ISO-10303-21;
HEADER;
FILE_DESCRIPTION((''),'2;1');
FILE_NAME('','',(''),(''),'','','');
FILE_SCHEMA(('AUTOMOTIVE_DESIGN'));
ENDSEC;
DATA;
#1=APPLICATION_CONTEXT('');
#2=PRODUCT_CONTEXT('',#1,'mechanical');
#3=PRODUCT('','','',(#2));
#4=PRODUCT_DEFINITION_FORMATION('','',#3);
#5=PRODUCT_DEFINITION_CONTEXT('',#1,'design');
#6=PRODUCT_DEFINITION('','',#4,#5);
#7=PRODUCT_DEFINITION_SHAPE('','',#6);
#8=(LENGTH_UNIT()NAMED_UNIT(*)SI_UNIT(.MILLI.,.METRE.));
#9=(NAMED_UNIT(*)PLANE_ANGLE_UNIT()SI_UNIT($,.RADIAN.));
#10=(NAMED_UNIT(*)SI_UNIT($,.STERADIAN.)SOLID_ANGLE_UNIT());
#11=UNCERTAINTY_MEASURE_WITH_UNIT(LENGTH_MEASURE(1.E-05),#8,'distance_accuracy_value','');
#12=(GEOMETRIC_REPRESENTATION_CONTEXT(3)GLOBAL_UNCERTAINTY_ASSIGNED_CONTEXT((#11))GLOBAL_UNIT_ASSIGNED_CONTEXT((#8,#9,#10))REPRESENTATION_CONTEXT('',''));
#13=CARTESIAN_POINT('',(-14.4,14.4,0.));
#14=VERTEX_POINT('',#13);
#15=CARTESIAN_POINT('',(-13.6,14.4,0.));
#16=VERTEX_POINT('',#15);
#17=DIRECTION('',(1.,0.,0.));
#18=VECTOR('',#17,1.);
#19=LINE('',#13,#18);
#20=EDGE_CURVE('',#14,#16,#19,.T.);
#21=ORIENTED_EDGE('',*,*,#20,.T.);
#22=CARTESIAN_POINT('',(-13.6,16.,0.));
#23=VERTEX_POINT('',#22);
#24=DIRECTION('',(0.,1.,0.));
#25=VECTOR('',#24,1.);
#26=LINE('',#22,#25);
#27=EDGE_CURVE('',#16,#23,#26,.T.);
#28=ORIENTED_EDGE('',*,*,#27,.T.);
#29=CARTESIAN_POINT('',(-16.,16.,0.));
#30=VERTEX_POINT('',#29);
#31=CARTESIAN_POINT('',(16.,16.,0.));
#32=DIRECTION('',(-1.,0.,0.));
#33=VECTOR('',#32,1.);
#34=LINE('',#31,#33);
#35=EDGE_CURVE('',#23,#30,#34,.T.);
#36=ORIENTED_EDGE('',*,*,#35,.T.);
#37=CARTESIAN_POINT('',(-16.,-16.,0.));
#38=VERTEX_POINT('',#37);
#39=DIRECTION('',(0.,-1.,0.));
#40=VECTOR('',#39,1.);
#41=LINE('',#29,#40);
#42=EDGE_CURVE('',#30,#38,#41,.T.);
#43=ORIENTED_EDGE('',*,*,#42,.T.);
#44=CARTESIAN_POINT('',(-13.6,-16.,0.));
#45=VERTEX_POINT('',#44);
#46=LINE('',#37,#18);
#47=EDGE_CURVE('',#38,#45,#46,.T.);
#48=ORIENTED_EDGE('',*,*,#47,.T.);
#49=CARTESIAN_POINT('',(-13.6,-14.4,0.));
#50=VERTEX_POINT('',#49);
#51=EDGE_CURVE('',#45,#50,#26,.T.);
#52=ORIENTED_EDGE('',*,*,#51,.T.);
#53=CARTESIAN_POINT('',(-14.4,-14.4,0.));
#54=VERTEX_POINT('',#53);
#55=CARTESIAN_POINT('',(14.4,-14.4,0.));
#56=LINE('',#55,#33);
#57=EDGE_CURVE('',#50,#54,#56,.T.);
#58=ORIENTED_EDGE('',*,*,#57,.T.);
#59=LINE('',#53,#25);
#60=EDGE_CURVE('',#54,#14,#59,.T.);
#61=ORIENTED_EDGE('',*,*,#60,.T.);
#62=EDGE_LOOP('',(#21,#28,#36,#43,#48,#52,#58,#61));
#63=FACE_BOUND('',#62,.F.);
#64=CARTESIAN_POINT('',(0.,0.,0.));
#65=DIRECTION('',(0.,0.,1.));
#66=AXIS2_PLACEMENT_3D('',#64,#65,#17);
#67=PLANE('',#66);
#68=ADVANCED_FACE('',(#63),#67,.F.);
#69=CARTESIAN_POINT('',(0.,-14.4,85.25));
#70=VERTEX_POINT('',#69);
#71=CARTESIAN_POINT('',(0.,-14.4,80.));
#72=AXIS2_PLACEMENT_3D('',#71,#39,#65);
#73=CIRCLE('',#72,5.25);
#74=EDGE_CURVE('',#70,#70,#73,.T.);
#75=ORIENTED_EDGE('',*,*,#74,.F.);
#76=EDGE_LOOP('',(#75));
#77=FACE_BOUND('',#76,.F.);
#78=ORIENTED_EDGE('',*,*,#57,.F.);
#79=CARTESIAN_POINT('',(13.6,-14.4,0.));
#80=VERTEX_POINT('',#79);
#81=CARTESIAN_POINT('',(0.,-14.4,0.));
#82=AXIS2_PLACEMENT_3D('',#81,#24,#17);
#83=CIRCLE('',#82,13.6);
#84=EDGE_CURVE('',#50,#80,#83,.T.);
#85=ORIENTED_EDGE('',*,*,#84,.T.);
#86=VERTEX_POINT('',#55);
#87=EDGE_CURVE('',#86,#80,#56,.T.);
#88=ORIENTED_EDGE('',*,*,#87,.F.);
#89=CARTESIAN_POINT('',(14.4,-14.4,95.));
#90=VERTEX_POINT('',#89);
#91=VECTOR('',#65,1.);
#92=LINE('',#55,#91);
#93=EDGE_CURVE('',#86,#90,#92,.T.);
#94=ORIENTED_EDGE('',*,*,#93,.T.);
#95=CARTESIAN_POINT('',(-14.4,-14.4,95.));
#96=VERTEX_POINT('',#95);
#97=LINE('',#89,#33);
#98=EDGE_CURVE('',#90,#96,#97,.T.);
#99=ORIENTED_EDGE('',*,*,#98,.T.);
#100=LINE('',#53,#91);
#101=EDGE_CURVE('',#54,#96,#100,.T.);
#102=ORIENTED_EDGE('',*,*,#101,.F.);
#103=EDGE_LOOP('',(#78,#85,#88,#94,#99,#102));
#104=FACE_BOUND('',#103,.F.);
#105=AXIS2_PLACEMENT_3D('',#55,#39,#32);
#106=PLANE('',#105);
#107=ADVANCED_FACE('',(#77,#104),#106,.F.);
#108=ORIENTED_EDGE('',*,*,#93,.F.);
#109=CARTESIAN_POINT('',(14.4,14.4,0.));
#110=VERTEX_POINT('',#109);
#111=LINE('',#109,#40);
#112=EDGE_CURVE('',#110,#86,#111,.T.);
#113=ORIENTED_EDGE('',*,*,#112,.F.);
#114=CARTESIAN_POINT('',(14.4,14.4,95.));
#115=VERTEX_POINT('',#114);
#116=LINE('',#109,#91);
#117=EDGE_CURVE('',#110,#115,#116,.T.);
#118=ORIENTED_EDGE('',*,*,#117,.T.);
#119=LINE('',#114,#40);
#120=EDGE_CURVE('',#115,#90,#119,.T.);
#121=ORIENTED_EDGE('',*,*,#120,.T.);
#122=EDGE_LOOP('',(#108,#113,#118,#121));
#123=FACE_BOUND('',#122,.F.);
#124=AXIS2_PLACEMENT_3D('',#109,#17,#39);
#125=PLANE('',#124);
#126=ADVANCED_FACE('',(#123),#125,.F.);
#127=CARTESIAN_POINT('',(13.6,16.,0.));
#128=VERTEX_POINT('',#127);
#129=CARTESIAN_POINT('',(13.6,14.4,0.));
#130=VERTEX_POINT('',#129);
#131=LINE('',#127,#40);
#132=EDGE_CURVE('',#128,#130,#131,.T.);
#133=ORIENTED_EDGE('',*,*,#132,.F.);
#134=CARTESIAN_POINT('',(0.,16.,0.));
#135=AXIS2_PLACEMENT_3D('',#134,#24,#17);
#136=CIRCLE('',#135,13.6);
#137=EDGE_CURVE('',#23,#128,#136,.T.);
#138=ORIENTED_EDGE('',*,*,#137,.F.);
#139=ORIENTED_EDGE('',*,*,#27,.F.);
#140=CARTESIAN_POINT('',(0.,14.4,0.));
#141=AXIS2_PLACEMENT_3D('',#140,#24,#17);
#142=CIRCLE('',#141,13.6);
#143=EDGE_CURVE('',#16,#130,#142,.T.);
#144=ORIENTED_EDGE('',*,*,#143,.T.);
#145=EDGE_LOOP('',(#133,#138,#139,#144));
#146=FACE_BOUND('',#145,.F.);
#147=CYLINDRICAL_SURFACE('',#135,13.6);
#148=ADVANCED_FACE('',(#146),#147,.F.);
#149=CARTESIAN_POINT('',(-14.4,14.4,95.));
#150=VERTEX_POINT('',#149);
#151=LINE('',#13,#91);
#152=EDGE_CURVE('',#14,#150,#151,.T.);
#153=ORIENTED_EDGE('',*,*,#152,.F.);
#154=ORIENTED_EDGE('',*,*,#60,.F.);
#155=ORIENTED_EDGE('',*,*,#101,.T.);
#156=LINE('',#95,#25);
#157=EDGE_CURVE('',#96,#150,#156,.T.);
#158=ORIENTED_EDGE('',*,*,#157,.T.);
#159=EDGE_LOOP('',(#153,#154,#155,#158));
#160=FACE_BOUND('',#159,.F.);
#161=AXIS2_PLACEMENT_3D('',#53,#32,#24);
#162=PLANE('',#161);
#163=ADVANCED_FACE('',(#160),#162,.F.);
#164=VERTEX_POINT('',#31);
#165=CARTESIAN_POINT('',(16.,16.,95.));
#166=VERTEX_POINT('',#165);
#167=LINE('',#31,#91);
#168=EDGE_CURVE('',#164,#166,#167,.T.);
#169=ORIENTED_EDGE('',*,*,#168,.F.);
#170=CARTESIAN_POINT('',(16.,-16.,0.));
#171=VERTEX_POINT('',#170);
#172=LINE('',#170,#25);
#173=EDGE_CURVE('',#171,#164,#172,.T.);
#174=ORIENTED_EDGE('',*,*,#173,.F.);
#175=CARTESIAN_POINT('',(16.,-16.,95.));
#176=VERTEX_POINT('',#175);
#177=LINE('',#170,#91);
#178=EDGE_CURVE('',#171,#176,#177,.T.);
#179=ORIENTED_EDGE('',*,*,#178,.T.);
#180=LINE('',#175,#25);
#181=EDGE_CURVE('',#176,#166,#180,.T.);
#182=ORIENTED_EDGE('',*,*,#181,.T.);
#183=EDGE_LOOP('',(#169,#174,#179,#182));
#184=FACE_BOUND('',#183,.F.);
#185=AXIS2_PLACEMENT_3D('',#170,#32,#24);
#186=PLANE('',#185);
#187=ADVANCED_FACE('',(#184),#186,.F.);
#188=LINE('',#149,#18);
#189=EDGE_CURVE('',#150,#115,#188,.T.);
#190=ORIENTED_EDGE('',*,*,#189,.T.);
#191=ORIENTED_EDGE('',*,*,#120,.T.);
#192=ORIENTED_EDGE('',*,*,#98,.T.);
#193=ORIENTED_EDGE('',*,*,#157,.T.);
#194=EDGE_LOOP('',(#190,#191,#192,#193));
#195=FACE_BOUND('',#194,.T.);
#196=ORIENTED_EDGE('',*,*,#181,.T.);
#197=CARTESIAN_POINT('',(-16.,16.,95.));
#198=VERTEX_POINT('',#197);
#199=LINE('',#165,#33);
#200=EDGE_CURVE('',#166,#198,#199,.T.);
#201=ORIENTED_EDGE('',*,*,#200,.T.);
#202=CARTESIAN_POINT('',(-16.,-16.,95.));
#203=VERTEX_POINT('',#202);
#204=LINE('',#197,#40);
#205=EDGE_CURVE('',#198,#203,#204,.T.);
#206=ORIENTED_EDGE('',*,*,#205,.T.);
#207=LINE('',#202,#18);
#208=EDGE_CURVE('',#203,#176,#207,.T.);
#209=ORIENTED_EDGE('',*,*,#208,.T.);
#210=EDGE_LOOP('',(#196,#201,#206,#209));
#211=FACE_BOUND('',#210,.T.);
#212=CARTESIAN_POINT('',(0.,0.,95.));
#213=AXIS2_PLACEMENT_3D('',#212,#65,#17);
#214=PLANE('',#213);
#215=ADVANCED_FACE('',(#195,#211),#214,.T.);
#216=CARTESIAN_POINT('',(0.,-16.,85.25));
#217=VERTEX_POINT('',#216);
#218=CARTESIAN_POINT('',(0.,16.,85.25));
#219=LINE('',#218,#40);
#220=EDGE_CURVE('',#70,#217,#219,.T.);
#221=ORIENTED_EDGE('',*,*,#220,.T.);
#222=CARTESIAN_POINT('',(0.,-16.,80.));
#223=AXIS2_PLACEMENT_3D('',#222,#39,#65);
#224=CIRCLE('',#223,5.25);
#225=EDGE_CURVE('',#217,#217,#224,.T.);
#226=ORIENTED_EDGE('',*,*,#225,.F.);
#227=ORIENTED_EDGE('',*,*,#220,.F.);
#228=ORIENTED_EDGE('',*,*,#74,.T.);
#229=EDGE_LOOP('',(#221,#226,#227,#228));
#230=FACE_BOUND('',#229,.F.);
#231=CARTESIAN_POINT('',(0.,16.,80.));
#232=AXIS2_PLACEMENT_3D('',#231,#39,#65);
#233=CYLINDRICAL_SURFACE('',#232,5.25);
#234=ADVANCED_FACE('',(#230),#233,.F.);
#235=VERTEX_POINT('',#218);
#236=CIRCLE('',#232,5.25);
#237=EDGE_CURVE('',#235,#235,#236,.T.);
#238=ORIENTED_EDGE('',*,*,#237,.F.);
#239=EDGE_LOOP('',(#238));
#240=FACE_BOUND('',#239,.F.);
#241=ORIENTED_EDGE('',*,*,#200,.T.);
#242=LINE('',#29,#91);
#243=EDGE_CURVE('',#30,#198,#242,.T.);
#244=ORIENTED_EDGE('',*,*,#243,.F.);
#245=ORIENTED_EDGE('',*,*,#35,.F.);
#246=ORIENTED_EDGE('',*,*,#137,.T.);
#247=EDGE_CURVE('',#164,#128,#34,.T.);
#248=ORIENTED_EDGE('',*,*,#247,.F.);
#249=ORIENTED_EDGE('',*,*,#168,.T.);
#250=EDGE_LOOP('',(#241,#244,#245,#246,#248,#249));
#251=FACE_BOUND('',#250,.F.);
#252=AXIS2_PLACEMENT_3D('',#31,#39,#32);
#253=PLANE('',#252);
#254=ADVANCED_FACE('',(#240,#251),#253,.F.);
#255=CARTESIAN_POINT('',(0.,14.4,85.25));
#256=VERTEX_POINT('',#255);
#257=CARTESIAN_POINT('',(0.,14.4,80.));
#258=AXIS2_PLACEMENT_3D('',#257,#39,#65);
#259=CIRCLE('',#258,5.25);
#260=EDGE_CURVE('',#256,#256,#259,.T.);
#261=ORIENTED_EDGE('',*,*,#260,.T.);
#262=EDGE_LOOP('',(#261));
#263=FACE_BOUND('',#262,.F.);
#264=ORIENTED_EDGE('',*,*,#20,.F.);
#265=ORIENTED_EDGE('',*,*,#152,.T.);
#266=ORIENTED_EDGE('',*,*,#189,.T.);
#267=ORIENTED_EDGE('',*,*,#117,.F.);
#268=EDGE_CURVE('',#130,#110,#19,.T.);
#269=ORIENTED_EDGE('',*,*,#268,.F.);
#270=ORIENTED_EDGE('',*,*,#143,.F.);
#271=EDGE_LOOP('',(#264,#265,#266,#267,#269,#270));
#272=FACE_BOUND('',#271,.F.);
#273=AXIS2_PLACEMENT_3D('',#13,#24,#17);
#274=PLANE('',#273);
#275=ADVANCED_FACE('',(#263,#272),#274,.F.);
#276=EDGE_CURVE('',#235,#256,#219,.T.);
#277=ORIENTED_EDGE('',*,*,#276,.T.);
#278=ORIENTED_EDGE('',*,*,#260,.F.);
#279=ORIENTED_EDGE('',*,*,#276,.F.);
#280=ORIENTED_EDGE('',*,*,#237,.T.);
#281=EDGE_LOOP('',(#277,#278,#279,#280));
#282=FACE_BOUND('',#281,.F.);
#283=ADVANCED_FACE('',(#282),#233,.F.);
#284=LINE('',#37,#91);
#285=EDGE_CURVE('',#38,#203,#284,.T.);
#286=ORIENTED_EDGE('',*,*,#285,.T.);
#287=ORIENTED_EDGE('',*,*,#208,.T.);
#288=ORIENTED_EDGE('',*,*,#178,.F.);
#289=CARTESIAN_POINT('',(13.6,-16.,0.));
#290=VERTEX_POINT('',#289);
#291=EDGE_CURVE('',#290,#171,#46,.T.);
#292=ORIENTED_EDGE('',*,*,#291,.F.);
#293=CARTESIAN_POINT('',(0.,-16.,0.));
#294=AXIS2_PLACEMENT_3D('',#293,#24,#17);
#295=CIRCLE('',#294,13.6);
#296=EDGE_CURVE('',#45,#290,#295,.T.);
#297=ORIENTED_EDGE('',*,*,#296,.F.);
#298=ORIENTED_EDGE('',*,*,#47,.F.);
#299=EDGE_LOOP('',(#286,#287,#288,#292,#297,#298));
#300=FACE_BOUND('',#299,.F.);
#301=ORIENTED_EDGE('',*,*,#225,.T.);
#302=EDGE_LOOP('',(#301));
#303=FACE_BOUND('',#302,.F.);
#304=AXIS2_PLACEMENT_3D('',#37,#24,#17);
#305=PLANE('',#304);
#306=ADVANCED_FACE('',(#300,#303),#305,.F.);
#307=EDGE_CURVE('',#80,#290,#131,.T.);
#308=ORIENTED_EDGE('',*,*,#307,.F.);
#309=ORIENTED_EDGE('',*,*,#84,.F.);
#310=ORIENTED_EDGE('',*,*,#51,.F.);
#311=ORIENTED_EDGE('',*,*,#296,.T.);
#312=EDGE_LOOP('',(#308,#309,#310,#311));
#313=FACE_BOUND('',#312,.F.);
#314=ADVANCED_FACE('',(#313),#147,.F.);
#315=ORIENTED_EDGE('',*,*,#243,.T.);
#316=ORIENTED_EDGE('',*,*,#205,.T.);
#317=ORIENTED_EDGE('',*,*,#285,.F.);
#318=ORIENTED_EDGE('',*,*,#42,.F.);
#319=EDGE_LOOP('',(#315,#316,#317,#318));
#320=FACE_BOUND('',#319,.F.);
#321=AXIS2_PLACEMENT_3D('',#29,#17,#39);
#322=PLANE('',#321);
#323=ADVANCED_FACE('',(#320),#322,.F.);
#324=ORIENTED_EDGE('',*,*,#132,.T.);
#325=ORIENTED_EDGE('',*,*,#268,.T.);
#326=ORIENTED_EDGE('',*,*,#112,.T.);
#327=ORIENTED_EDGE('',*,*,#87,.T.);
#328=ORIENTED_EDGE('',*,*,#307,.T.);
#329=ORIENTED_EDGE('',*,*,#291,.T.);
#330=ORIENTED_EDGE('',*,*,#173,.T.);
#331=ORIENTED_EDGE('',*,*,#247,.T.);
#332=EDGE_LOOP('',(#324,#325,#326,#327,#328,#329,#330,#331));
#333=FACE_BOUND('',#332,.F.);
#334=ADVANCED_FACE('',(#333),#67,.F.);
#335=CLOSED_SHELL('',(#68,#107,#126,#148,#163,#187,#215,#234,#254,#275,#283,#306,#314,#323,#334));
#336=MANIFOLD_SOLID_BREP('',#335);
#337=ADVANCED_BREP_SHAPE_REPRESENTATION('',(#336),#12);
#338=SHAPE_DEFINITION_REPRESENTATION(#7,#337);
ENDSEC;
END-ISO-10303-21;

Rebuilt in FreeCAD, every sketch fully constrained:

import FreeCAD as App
import Part
import Sketcher
from FreeCAD import Vector


def add_polygon(sketch, points):
    """Adds a closed chain of lines whose ends are joined by coincident constraints."""
    first, n = sketch.GeometryCount, len(points)
    for a, b in zip(points, points[1:] + points[:1]):
        sketch.addGeometry(Part.LineSegment(App.Vector(*a, 0), App.Vector(*b, 0)), False)
    for i in range(n):
        sketch.addConstraint(Sketcher.Constraint("Coincident", first + i, 2, first + (i + 1) % n, 1))

doc = App.newDocument("Part")
body = doc.addObject("PartDesign::Body", "Body")

sketch1 = body.newObject("Sketcher::SketchObject", "Sketch")
sketch1.AttachmentSupport = (doc.getObject("XY_Plane"), [""])
sketch1.MapMode = "FlatFace"
add_polygon(sketch1, [(-16, 16), (-16, -16), (16, -16), (16, 16)])
add_polygon(sketch1, [(-14, -14), (-14, 14), (14, 14), (14, -14)])
sketch1.addConstraint(Sketcher.Constraint("Vertical", 0))
sketch1.addConstraint(Sketcher.Constraint("Horizontal", 1))
sketch1.addConstraint(Sketcher.Constraint("Vertical", 2))
sketch1.addConstraint(Sketcher.Constraint("Horizontal", 3))
sketch1.addConstraint(Sketcher.Constraint("Vertical", 4))
sketch1.addConstraint(Sketcher.Constraint("Horizontal", 5))
sketch1.addConstraint(Sketcher.Constraint("Vertical", 6))
sketch1.addConstraint(Sketcher.Constraint("Horizontal", 7))
sketch1.addConstraint(Sketcher.Constraint("Symmetric", 0, 2, 2, 2, -1, 1))
sketch1.addConstraint(Sketcher.Constraint("Symmetric", 4, 2, 6, 2, -1, 1))
sketch1.addConstraint(Sketcher.Constraint("Equal", 3, 0))
sketch1.addConstraint(Sketcher.Constraint("Equal", 7, 4))
sketch1.addConstraint(Sketcher.Constraint("DistanceX", 1, 1, 1, 2, 32.0))
sketch1.addConstraint(Sketcher.Constraint("DistanceX", 3, 2, 4, 2, 1.6))
pad1 = body.newObject("PartDesign::Pad", "Pad")
pad1.Profile = sketch1
pad1.Length = 95

sketch2 = body.newObject("Sketcher::SketchObject", "Sketch001")
sketch2.AttachmentSupport = (doc.getObject("XZ_Plane"), [""])
sketch2.MapMode = "FlatFace"
sketch2.AttachmentOffset = App.Placement(Vector(0, 0, -16), App.Rotation())
sketch2.addGeometry(Part.Circle(Vector(0, 0, 0), Vector(0, 0, 1), 14), False)
sketch2.addConstraint(Sketcher.Constraint("Coincident", 0, 3, -1, 1))
sketch2.addConstraint(Sketcher.Constraint("Diameter", 0, 27.2))
pocket1 = body.newObject("PartDesign::Pocket", "Pocket")
pocket1.Profile = sketch2
pocket1.Length = 32
pocket1.Reversed = True

sketch3 = body.newObject("Sketcher::SketchObject", "Sketch002")
sketch3.AttachmentSupport = (doc.getObject("XZ_Plane"), [""])
sketch3.MapMode = "FlatFace"
sketch3.AttachmentOffset = App.Placement(Vector(0, 0, -16), App.Rotation())
sketch3.addGeometry(Part.Circle(Vector(0, 80, 0), Vector(0, 0, 1), 5), False)
sketch3.addConstraint(Sketcher.Constraint("PointOnObject", 0, 3, -2))
sketch3.addConstraint(Sketcher.Constraint("Diameter", 0, 10.5))
sketch3.addConstraint(Sketcher.Constraint("DistanceY", -1, 1, 0, 3, 80.0))
doc.recompute()
hole = body.newObject("PartDesign::Hole", "Hole")
hole.Profile = sketch3
hole.ThreadType = "None"
hole.Diameter = 10.5
hole.DepthType = "ThroughAll"
hole.Reversed = True

doc.recompute()
